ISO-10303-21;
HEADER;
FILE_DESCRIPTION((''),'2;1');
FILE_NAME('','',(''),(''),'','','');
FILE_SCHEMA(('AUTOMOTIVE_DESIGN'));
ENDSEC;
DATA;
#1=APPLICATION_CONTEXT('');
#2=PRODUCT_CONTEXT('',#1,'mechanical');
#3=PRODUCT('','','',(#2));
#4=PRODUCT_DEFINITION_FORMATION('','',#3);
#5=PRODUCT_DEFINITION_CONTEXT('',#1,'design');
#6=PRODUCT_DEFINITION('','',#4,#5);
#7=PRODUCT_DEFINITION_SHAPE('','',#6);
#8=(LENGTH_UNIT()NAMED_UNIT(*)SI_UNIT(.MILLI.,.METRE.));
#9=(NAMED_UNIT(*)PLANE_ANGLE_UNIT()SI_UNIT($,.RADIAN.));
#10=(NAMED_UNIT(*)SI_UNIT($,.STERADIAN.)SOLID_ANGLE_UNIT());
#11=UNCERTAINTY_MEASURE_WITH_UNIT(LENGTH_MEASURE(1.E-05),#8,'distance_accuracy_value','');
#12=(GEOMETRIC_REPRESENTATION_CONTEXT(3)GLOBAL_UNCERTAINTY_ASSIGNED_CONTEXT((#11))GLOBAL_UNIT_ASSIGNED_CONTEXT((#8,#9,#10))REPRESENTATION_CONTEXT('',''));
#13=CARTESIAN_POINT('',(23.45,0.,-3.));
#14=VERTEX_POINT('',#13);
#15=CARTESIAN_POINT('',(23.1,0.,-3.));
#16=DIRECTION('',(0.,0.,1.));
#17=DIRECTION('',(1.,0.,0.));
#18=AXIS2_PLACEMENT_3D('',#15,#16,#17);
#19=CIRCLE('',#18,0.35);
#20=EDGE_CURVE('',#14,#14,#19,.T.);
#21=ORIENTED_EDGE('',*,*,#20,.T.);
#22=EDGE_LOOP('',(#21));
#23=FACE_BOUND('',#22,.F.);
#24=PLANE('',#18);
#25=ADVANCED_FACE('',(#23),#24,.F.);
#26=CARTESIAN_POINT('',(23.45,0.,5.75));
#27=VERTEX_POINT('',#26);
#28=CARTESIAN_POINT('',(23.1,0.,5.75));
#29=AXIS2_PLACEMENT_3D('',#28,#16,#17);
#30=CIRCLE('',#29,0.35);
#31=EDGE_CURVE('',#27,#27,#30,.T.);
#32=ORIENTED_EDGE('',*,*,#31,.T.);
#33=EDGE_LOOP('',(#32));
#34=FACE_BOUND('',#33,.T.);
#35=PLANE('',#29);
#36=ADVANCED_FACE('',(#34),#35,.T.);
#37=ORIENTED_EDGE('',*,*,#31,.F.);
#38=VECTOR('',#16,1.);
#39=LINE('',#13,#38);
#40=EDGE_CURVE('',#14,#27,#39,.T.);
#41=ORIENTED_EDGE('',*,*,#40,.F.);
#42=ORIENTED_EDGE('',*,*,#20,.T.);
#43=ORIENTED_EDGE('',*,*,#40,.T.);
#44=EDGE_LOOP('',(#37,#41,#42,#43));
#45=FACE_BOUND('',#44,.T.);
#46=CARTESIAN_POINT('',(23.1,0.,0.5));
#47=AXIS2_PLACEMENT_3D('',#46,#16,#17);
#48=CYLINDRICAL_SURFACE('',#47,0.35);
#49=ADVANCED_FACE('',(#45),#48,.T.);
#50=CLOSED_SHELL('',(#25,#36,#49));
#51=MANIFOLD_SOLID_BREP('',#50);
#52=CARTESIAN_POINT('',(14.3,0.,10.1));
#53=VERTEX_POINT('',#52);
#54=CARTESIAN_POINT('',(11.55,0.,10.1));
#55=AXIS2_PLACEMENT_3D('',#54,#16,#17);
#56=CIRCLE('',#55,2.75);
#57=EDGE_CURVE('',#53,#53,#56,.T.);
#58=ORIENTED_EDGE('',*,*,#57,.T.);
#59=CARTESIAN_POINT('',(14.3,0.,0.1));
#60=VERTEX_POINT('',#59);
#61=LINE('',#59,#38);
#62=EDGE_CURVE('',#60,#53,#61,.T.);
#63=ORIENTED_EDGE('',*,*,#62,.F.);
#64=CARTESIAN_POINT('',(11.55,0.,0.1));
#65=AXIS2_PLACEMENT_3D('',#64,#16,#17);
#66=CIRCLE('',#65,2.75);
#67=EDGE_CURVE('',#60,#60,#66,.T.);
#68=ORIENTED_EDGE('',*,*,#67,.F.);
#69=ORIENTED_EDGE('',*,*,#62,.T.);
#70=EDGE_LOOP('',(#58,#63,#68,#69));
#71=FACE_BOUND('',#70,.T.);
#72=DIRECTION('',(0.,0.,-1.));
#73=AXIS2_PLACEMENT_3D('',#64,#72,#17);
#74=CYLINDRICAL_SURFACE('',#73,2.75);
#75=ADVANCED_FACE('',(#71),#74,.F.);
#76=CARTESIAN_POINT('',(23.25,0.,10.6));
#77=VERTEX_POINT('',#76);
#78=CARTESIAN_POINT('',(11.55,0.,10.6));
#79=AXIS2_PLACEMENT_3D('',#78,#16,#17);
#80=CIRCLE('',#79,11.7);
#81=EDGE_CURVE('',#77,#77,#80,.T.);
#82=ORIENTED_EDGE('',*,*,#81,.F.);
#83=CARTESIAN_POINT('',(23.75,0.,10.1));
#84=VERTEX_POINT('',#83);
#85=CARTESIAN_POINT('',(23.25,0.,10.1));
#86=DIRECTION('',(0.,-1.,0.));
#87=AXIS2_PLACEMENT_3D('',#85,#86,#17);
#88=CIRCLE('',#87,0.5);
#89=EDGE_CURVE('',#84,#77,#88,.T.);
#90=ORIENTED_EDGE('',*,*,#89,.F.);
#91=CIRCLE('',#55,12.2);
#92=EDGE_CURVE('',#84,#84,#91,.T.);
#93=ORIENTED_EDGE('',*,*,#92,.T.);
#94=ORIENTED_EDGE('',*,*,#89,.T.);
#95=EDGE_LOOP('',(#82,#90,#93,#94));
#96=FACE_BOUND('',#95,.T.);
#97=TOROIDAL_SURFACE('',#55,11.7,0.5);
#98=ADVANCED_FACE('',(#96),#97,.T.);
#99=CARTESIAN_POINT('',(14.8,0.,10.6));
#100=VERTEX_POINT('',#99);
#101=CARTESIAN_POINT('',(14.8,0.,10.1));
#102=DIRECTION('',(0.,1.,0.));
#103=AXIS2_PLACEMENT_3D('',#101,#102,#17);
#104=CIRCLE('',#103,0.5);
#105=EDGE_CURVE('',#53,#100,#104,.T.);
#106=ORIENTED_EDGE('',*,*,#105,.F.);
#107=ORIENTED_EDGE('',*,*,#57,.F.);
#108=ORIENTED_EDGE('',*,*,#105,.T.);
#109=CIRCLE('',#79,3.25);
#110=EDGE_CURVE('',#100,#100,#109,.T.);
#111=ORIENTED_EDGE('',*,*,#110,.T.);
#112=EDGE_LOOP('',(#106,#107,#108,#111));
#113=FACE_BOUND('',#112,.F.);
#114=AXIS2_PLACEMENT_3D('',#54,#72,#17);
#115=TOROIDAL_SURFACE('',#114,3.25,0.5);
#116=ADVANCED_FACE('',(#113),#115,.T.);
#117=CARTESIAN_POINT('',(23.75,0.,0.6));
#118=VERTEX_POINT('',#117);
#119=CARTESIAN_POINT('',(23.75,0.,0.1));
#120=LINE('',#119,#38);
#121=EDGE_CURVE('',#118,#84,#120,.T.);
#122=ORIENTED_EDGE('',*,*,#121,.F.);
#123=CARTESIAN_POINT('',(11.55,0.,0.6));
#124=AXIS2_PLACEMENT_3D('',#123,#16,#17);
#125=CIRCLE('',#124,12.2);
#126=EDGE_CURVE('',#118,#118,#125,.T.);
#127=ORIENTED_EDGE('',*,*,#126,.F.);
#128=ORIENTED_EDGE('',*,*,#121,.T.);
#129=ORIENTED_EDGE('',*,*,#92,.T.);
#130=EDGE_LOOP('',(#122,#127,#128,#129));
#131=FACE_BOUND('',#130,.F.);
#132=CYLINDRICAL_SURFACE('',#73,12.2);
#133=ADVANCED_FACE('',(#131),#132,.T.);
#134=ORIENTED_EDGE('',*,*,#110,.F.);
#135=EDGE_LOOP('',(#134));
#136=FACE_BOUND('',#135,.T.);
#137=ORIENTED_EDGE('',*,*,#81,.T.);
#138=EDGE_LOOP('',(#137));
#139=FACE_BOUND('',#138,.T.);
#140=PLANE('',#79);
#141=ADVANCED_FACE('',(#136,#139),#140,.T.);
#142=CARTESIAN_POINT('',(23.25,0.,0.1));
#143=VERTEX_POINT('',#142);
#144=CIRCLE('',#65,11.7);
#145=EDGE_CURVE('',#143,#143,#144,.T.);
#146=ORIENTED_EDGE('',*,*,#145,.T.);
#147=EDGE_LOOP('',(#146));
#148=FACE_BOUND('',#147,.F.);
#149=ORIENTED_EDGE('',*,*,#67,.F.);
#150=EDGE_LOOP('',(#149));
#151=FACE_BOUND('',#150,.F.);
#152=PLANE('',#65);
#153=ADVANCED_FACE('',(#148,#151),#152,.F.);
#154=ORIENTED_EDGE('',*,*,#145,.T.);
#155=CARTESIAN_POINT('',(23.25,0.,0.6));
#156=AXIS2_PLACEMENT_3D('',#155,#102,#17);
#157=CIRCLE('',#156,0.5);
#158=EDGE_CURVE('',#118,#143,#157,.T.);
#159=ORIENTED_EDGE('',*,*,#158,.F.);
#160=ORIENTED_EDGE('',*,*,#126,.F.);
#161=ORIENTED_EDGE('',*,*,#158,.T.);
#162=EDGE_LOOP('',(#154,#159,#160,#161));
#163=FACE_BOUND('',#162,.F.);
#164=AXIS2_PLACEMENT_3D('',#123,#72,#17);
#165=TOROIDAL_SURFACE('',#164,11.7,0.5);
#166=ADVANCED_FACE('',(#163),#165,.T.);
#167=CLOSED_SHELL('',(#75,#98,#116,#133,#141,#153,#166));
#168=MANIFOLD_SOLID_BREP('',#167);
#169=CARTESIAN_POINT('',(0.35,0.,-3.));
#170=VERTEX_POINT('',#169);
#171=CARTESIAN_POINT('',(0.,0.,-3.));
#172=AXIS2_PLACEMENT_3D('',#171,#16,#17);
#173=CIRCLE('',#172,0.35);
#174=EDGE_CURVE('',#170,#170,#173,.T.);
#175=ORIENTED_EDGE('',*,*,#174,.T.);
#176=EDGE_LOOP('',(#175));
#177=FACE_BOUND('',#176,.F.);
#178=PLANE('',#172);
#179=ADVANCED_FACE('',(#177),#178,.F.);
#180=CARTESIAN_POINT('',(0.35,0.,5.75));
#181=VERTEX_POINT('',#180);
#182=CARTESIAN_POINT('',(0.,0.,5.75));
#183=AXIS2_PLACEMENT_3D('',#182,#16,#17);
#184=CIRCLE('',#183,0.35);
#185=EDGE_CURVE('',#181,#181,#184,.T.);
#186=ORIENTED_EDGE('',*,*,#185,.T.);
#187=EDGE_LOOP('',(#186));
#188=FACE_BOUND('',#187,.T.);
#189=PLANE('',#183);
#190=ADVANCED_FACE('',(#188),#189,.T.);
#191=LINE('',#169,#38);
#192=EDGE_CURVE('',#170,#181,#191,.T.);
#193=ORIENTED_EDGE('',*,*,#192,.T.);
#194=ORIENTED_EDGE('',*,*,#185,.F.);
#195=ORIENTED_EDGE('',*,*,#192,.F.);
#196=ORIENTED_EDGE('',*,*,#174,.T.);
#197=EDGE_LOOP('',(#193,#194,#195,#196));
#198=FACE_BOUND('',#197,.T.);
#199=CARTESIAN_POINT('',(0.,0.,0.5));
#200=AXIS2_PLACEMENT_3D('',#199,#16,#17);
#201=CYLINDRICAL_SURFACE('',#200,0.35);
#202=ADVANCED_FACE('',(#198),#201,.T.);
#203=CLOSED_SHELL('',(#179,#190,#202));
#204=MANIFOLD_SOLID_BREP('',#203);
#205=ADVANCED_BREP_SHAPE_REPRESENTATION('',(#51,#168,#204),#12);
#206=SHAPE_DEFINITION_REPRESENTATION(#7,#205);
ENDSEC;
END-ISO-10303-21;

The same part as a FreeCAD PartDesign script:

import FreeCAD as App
import Part
import Sketcher
from FreeCAD import Vector


def edges_at(feature, points):
    """Names of the edges that pass closest to the given points."""
    edges = feature.Shape.Edges
    near = lambda p: min(range(len(edges)), key=lambda i: edges[i].distToShape(Part.Vertex(*p))[0])
    return sorted({f"Edge{near(p) + 1}" for p in points})

doc = App.newDocument("Part")
body = doc.addObject("PartDesign::Body", "Body")
body.AllowCompound = True

# Sketch on XY plane
sketch1 = body.newObject("Sketcher::SketchObject", "Sketch")
sketch1.AttachmentSupport = (doc.getObject("XY_Plane"), [""])
sketch1.MapMode = "FlatFace"
sketch1.AttachmentOffset = App.Placement(Vector(0, 0, 0.5), App.Rotation())
sketch1.addGeometry(Part.Circle(Vector(0, 0, 0), Vector(0, 0, 1), 0.35), False)
sketch1.addGeometry(Part.Circle(Vector(23.1, 0, 0), Vector(0, 0, 1), 0.35), False)
sketch1.addConstraint(Sketcher.Constraint("Coincident", 0, 3, -1, 1))
sketch1.addConstraint(Sketcher.Constraint("Equal", 0, 1))
sketch1.addConstraint(Sketcher.Constraint("PointOnObject", 1, 3, -1))
sketch1.addConstraint(Sketcher.Constraint("Diameter", 0, 0.7))
sketch1.addConstraint(Sketcher.Constraint("DistanceX", -1, 1, 1, 3, 23.1))
pad1 = body.newObject("PartDesign::Pad", "Pad")
pad1.Profile = sketch1
pad1.Type = "TwoLengths"
pad1.Length = 5.25
pad1.Length2 = 3.5
body2 = doc.addObject("PartDesign::Body", "Body001")

# Sketch on XY plane
sketch2 = body2.newObject("Sketcher::SketchObject", "Sketch001")
sketch2.AttachmentSupport = (doc.getObject("XY_Plane001"), [""])
sketch2.MapMode = "FlatFace"
sketch2.AttachmentOffset = App.Placement(Vector(0, 0, 0.1), App.Rotation())
sketch2.addGeometry(Part.Circle(Vector(11.55, 0, 0), Vector(0, 0, 1), 12.2), False)
sketch2.addGeometry(Part.Circle(Vector(11.55, 0, 0), Vector(0, 0, 1), 2.75), False)
sketch2.addConstraint(Sketcher.Constraint("Coincident", 1, 3, 0, 3))
sketch2.addConstraint(Sketcher.Constraint("PointOnObject", 0, 3, -1))
sketch2.addConstraint(Sketcher.Constraint("Diameter", 0, 24.4))
sketch2.addConstraint(Sketcher.Constraint("Diameter", 1, 5.5))
sketch2.addConstraint(Sketcher.Constraint("DistanceX", -1, 1, 0, 3, 11.55))
pad2 = body2.newObject("PartDesign::Pad", "Pad001")
pad2.Profile = sketch2
pad2.Length = 10.5
doc.recompute()

fillet = body2.newObject("PartDesign::Fillet", "Fillet")
fillet.Base = (pad2, edges_at(pad2, [(8.8, 0, 10.6), (-0.65, 0, 10.6), (-0.65, 0, 0.1)]))
fillet.Radius = 0.5

doc.recompute()
